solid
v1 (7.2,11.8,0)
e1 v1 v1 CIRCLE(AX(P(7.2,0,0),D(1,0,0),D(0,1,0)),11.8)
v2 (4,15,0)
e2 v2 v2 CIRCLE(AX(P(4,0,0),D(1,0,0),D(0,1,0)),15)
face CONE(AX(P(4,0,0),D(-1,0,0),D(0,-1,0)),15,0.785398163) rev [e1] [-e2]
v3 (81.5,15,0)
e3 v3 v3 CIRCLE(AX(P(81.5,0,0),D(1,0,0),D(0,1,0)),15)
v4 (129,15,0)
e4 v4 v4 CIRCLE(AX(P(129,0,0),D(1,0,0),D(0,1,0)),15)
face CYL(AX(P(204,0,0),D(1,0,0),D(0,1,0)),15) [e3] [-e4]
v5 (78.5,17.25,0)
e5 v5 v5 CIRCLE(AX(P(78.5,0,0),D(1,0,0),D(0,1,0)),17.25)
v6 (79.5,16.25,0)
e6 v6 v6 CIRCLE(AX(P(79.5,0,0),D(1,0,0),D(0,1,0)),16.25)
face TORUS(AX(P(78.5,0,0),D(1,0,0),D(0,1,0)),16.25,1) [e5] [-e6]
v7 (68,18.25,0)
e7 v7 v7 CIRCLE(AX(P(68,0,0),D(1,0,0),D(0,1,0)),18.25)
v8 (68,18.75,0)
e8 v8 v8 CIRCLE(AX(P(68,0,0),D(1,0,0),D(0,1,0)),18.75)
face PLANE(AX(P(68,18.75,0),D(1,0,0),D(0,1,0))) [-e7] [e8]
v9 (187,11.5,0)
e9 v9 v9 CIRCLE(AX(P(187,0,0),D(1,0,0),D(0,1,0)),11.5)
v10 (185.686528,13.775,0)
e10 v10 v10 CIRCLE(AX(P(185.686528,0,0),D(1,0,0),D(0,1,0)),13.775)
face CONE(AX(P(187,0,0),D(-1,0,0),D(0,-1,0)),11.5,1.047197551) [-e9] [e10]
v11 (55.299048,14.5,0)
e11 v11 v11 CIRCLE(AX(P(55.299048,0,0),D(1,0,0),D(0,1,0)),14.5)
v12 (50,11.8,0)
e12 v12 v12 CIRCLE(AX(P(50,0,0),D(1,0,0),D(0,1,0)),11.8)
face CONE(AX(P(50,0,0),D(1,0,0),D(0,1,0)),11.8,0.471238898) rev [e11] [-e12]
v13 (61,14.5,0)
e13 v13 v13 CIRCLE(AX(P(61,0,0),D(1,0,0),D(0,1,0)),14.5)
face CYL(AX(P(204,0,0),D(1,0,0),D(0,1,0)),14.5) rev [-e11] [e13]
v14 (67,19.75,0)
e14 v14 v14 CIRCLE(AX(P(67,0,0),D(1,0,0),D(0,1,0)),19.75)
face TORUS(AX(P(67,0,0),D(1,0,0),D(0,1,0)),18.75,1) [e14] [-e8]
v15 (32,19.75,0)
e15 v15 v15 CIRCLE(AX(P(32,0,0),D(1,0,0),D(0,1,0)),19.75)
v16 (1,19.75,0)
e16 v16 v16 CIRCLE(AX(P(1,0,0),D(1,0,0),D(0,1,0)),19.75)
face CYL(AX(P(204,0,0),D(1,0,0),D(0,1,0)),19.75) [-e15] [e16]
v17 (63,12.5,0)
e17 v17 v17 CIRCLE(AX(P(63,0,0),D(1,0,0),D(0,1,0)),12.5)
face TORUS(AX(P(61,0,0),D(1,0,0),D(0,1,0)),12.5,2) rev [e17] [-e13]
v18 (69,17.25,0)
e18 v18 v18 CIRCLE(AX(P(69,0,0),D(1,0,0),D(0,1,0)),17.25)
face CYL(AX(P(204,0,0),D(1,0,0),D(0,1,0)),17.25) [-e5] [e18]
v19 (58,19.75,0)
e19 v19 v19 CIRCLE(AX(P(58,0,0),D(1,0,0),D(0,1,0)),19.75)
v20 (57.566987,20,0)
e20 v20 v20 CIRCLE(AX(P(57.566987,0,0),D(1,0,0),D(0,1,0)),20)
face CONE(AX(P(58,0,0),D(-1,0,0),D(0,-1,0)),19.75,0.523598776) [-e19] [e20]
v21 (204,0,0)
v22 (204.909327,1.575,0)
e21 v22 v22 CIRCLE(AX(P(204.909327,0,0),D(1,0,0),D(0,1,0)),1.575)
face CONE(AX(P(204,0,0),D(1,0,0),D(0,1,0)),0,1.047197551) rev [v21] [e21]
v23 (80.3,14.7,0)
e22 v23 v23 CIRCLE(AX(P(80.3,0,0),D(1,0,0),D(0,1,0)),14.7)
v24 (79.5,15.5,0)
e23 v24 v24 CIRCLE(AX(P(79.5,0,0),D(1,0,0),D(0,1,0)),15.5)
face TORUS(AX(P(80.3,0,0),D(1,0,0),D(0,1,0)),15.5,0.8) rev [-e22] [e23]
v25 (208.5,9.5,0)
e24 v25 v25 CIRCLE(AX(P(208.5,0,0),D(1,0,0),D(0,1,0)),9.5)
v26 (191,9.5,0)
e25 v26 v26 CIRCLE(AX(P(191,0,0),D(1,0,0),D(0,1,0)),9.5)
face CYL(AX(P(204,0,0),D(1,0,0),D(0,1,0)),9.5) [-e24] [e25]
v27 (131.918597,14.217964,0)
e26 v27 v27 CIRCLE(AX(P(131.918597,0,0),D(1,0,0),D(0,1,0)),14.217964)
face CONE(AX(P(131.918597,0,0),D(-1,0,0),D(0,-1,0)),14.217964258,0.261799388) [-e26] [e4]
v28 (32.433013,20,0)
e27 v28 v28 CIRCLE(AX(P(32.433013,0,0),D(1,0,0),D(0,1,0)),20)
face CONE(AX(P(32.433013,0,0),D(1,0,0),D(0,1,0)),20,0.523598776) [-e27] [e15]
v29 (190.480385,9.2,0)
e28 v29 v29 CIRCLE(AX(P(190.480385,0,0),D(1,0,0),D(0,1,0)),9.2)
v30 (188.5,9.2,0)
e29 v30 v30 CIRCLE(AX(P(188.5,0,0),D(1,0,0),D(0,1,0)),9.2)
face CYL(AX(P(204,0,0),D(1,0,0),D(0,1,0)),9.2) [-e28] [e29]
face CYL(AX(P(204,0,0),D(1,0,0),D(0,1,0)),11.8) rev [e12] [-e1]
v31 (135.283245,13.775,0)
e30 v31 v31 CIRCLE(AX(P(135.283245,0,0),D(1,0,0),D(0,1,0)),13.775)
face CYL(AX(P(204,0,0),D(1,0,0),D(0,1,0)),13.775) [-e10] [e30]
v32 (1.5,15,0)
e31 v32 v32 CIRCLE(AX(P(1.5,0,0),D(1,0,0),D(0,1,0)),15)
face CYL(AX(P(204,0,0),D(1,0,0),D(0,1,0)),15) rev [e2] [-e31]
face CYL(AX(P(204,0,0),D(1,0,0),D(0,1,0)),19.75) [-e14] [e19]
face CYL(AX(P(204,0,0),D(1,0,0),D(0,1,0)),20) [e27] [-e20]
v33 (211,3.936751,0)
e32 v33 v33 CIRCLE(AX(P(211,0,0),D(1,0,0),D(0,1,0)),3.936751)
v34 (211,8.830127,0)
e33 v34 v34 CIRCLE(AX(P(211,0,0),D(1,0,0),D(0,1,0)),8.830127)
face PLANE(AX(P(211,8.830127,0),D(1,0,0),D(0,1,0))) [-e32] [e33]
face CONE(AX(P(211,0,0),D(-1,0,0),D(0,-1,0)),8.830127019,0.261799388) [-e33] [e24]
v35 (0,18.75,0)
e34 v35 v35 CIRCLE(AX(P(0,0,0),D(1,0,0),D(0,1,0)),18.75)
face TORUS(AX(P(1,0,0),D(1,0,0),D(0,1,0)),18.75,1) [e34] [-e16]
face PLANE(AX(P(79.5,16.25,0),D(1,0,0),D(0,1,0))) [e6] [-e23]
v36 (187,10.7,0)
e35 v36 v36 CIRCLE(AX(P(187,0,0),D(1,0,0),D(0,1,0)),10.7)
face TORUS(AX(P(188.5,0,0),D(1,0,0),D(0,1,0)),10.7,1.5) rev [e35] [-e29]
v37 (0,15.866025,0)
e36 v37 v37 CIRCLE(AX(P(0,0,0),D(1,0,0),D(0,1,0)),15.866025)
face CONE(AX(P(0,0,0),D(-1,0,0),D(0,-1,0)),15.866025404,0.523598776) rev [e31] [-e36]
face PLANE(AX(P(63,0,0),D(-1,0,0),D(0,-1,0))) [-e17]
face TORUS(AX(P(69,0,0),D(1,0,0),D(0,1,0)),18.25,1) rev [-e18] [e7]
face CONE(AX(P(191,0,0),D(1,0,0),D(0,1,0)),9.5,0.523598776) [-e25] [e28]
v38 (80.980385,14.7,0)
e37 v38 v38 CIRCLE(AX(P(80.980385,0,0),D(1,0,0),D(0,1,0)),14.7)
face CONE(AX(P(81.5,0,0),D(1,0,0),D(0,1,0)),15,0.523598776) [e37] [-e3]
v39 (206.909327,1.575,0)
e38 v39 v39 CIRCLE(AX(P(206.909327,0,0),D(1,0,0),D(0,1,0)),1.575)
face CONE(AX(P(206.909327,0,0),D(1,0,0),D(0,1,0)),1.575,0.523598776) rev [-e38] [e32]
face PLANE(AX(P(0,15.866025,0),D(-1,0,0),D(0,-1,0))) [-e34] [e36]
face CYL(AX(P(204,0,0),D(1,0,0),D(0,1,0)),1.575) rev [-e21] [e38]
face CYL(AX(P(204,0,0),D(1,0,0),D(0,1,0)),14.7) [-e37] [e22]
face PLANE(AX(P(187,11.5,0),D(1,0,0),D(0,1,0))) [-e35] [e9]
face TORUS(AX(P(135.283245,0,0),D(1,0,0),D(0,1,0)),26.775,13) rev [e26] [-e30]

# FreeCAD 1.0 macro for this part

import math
import FreeCAD as App
import Part
import Sketcher

V = App.Vector
Q = App.Units.Quantity

doc = App.newDocument("Part")
body = doc.addObject("PartDesign::Body", "Body")

sketch1 = body.newObject("Sketcher::SketchObject", "Sketch")
sketch1.AttachmentSupport = (doc.getObject("XY_Plane"), [""])
sketch1.MapMode = "FlatFace"
sketch1.addGeometry([
    Part.LineSegment(V(0, 18.75, 0), V(0, 15.866025, 0)),
    Part.LineSegment(V(0, 15.866025, 0), V(1.5, 15, 0)),
    Part.LineSegment(V(1.5, 15, 0), V(4, 15, 0)),
    Part.LineSegment(V(4, 15, 0), V(7.2, 11.8, 0)),
    Part.LineSegment(V(7.2, 11.8, 0), V(50, 11.8, 0)),
    Part.LineSegment(V(50, 11.8, 0), V(55.299048, 14.5, 0)),
    Part.LineSegment(V(55.299048, 14.5, 0), V(61, 14.5, 0)),
    Part.ArcOfCircle(Part.Circle(V(61, 12.5, 0), V(0, 0, 1), 2), math.radians(0), math.radians(90)),
    Part.LineSegment(V(63, 12.5, 0), V(63, 0, 0)),
    Part.LineSegment(V(63, 0, 0), V(204, 0, 0)),
    Part.LineSegment(V(204, 0, 0), V(204.909327, 1.575, 0)),
    Part.LineSegment(V(204.909327, 1.575, 0), V(206.909327, 1.575, 0)),
    Part.LineSegment(V(206.909327, 1.575, 0), V(211, 3.936751, 0)),
    Part.LineSegment(V(211, 3.936751, 0), V(211, 8.830127, 0)),
    Part.LineSegment(V(211, 8.830127, 0), V(208.5, 9.5, 0)),
    Part.LineSegment(V(208.5, 9.5, 0), V(191, 9.5, 0)),
    Part.LineSegment(V(191, 9.5, 0), V(190.480385, 9.2, 0)),
    Part.LineSegment(V(190.480385, 9.2, 0), V(188.5, 9.2, 0)),
    Part.ArcOfCircle(Part.Circle(V(188.5, 10.7, 0), V(0, 0, 1), 1.5), math.radians(180), math.radians(270)),
    Part.LineSegment(V(187, 10.7, 0), V(187, 11.5, 0)),
    Part.LineSegment(V(187, 11.5, 0), V(185.686528, 13.775, 0)),
    Part.LineSegment(V(185.686528, 13.775, 0), V(135.283245, 13.775, 0)),
    Part.ArcOfCircle(Part.Circle(V(135.283245, 26.775, 0), V(0, 0, 1), 13), math.radians(-105), math.radians(-90)),
    Part.LineSegment(V(131.918597, 14.217964, 0), V(129, 15, 0)),
    Part.LineSegment(V(129, 15, 0), V(81.5, 15, 0)),
    Part.LineSegment(V(81.5, 15, 0), V(80.980385, 14.7, 0)),
    Part.LineSegment(V(80.980385, 14.7, 0), V(80.3, 14.7, 0)),
    Part.ArcOfCircle(Part.Circle(V(80.3, 15.5, 0), V(0, 0, 1), 0.8), math.radians(180), math.radians(270)),
    Part.LineSegment(V(79.5, 15.5, 0), V(79.5, 16.25, 0)),
    Part.ArcOfCircle(Part.Circle(V(78.5, 16.25, 0), V(0, 0, 1), 1), math.radians(0), math.radians(90)),
    Part.LineSegment(V(78.5, 17.25, 0), V(69, 17.25, 0)),
    Part.ArcOfCircle(Part.Circle(V(69, 18.25, 0), V(0, 0, 1), 1), math.radians(-180), math.radians(-90)),
    Part.LineSegment(V(68, 18.25, 0), V(68, 18.75, 0)),
    Part.ArcOfCircle(Part.Circle(V(67, 18.75, 0), V(0, 0, 1), 1), math.radians(0), math.radians(90)),
    Part.LineSegment(V(67, 19.75, 0), V(58, 19.75, 0)),
    Part.LineSegment(V(58, 19.75, 0), V(57.566987, 20, 0)),
    Part.LineSegment(V(57.566987, 20, 0), V(32.433013, 20, 0)),
    Part.LineSegment(V(32.433013, 20, 0), V(32, 19.75, 0)),
    Part.LineSegment(V(32, 19.75, 0), V(1, 19.75, 0)),
    Part.ArcOfCircle(Part.Circle(V(1, 18.75, 0), V(0, 0, 1), 1), math.radians(90), math.radians(180)),
], False)
sketch1.addConstraint([
    Sketcher.Constraint("Coincident", 0, 2, 1, 1),
    Sketcher.Constraint("Coincident", 1, 2, 2, 1),
    Sketcher.Constraint("Coincident", 2, 2, 3, 1),
    Sketcher.Constraint("Coincident", 3, 2, 4, 1),
    Sketcher.Constraint("Coincident", 4, 2, 5, 1),
    Sketcher.Constraint("Coincident", 5, 2, 6, 1),
    Sketcher.Constraint("Tangent", 6, 2, 7, 2),
    Sketcher.Constraint("Tangent", 7, 1, 8, 1),
    Sketcher.Constraint("Coincident", 8, 2, 9, 1),
    Sketcher.Constraint("Coincident", 9, 2, 10, 1),
    Sketcher.Constraint("Coincident", 10, 2, 11, 1),
    Sketcher.Constraint("Coincident", 11, 2, 12, 1),
    Sketcher.Constraint("Coincident", 12, 2, 13, 1),
    Sketcher.Constraint("Coincident", 13, 2, 14, 1),
    Sketcher.Constraint("Coincident", 14, 2, 15, 1),
    Sketcher.Constraint("Coincident", 15, 2, 16, 1),
    Sketcher.Constraint("Coincident", 16, 2, 17, 1),
    Sketcher.Constraint("Tangent", 17, 2, 18, 2),
    Sketcher.Constraint("Tangent", 18, 1, 19, 1),
    Sketcher.Constraint("Coincident", 19, 2, 20, 1),
    Sketcher.Constraint("Coincident", 20, 2, 21, 1),
    Sketcher.Constraint("Tangent", 21, 2, 22, 2),
    Sketcher.Constraint("Tangent", 22, 1, 23, 1),
    Sketcher.Constraint("Coincident", 23, 2, 24, 1),
    Sketcher.Constraint("Coincident", 24, 2, 25, 1),
    Sketcher.Constraint("Coincident", 25, 2, 26, 1),
    Sketcher.Constraint("Tangent", 26, 2, 27, 2),
    Sketcher.Constraint("Tangent", 27, 1, 28, 1),
    Sketcher.Constraint("Tangent", 28, 2, 29, 1),
    Sketcher.Constraint("Tangent", 29, 2, 30, 1),
    Sketcher.Constraint("Tangent", 30, 2, 31, 2),
    Sketcher.Constraint("Tangent", 31, 1, 32, 1),
    Sketcher.Constraint("Tangent", 32, 2, 33, 1),
    Sketcher.Constraint("Tangent", 33, 2, 34, 1),
    Sketcher.Constraint("Coincident", 34, 2, 35, 1),
    Sketcher.Constraint("Coincident", 35, 2, 36, 1),
    Sketcher.Constraint("Coincident", 36, 2, 37, 1),
    Sketcher.Constraint("Coincident", 37, 2, 38, 1),
    Sketcher.Constraint("Tangent", 38, 2, 39, 1),
    Sketcher.Constraint("Tangent", 39, 2, 0, 1),
    Sketcher.Constraint("Vertical", 0),
    Sketcher.Constraint("Horizontal", 2),
    Sketcher.Constraint("Horizontal", 4),
    Sketcher.Constraint("Horizontal", 6),
    Sketcher.Constraint("Vertical", 8),
    Sketcher.Constraint("Horizontal", 9),
    Sketcher.Constraint("Horizontal", 11),
    Sketcher.Constraint("Vertical", 13),
    Sketcher.Constraint("Horizontal", 15),
    Sketcher.Constraint("Horizontal", 17),
    Sketcher.Constraint("Vertical", 19),
    Sketcher.Constraint("Horizontal", 21),
    Sketcher.Constraint("Horizontal", 24),
    Sketcher.Constraint("Horizontal", 26),
    Sketcher.Constraint("Vertical", 28),
    Sketcher.Constraint("Horizontal", 30),
    Sketcher.Constraint("Vertical", 32),
    Sketcher.Constraint("Horizontal", 34),
    Sketcher.Constraint("Horizontal", 36),
    Sketcher.Constraint("Horizontal", 38),
    Sketcher.Constraint("Equal", 29, 31),
    Sketcher.Constraint("Equal", 31, 33),
    Sketcher.Constraint("Equal", 33, 39),
    Sketcher.Constraint("PointOnObject", 0, 2, -2),
    Sketcher.Constraint("PointOnObject", 8, 2, -1),
    Sketcher.Constraint("Perpendicular", 1, 10),
    Sketcher.Constraint("Parallel", 12, 16),
    Sketcher.Constraint("Perpendicular", 16, 20),
    Sketcher.Constraint("Parallel", 14, 23),
    Sketcher.Constraint("Perpendicular", 20, 25),
    Sketcher.Constraint("Perpendicular", 10, 35),
    Sketcher.Constraint("Parallel", 25, 37),
    Sketcher.Constraint("Horizontal", 33, 3, 39, 3),
    Sketcher.Constraint("Horizontal", 2, 2, 23, 2),
    Sketcher.Constraint("Equal", 16, 25),
    Sketcher.Constraint("Equal", 35, 37),
    Sketcher.Constraint("Radius", 7, 2.0),
    Sketcher.Constraint("Radius", 22, 13.0),
    Sketcher.Constraint("Radius", 29, 1.0),
    Sketcher.Constraint("Radius", 18, 1.5),
    Sketcher.Constraint("Radius", 27, 0.8),
    Sketcher.Constraint("DistanceX", 9, 1, 9, 2, 141.0),
    Sketcher.Constraint("DistanceX", 11, 1, 11, 2, 2.0),
    Sketcher.Constraint("DistanceX", 34, 2, 34, 1, 9.0),
    Sketcher.Constraint("DistanceX", 38, 2, 38, 1, 31.0),
    Sketcher.Constraint("Angle", 1, Q("-30 deg")),
    Sketcher.Constraint("Angle", 3, Q("-45 deg")),
    Sketcher.Constraint("Angle", 5, Q("27 deg")),
    Sketcher.Constraint("Angle", 14, Q("165 deg")),
    Sketcher.Constraint("DistanceX", 2, 1, 2, 2, 2.5),
    Sketcher.Constraint("DistanceX", 4, 1, 4, 2, 42.8),
    Sketcher.Constraint("DistanceX", 15, 2, 15, 1, 17.5),
    Sketcher.Constraint("DistanceX", 24, 2, 24, 1, 47.5),
    Sketcher.Constraint("DistanceX", 30, 2, 30, 1, 9.5),
    Sketcher.Constraint("DistanceY", 8, 2, 8, 1, 12.5),
    Sketcher.Constraint("DistanceY", 19, 1, 19, 2, 0.8),
    Sketcher.Constraint("DistanceY", 32, 1, 32, 2, 0.5),
    Sketcher.Constraint("DistanceX", -1, 1, 7, 3, 61.0),
    Sketcher.Constraint("DistanceX", -1, 1, 31, 3, 69.0),
    Sketcher.Constraint("DistanceY", -1, 1, 1, 2, 15.0),
    Sketcher.Constraint("DistanceX", -1, 1, 2, 2, 4.0),
    Sketcher.Constraint("DistanceX", -1, 1, 4, 2, 50.0),
    Sketcher.Constraint("DistanceX", -1, 1, 12, 2, 211.0),
    Sketcher.Constraint("DistanceX", -1, 1, 15, 2, 191.0),
    Sketcher.Constraint("DistanceX", -1, 1, 18, 1, 187.0),
    Sketcher.Constraint("DistanceX", -1, 1, 23, 2, 129.0),
    Sketcher.Constraint("DistanceY", -1, 1, 35, 2, 20.0),
    Sketcher.Constraint("DistanceY", 7, 3, 27, 3, 3.0),
    Sketcher.Constraint("Distance", 35, 0.5),
    Sketcher.Constraint("DistanceY", -1, 1, 18, 3, 10.7),
    Sketcher.Constraint("DistanceY", 10, 2, 22, 3, 25.2),
    Sketcher.Constraint("DistanceY", -1, 1, 22, 3, 26.775),
])
revolution = body.newObject("PartDesign::Revolution", "Revolution")
revolution.Profile = sketch1
revolution.ReferenceAxis = (sketch1, ["H_Axis"])
revolution.Angle = 360

doc.recompute()
